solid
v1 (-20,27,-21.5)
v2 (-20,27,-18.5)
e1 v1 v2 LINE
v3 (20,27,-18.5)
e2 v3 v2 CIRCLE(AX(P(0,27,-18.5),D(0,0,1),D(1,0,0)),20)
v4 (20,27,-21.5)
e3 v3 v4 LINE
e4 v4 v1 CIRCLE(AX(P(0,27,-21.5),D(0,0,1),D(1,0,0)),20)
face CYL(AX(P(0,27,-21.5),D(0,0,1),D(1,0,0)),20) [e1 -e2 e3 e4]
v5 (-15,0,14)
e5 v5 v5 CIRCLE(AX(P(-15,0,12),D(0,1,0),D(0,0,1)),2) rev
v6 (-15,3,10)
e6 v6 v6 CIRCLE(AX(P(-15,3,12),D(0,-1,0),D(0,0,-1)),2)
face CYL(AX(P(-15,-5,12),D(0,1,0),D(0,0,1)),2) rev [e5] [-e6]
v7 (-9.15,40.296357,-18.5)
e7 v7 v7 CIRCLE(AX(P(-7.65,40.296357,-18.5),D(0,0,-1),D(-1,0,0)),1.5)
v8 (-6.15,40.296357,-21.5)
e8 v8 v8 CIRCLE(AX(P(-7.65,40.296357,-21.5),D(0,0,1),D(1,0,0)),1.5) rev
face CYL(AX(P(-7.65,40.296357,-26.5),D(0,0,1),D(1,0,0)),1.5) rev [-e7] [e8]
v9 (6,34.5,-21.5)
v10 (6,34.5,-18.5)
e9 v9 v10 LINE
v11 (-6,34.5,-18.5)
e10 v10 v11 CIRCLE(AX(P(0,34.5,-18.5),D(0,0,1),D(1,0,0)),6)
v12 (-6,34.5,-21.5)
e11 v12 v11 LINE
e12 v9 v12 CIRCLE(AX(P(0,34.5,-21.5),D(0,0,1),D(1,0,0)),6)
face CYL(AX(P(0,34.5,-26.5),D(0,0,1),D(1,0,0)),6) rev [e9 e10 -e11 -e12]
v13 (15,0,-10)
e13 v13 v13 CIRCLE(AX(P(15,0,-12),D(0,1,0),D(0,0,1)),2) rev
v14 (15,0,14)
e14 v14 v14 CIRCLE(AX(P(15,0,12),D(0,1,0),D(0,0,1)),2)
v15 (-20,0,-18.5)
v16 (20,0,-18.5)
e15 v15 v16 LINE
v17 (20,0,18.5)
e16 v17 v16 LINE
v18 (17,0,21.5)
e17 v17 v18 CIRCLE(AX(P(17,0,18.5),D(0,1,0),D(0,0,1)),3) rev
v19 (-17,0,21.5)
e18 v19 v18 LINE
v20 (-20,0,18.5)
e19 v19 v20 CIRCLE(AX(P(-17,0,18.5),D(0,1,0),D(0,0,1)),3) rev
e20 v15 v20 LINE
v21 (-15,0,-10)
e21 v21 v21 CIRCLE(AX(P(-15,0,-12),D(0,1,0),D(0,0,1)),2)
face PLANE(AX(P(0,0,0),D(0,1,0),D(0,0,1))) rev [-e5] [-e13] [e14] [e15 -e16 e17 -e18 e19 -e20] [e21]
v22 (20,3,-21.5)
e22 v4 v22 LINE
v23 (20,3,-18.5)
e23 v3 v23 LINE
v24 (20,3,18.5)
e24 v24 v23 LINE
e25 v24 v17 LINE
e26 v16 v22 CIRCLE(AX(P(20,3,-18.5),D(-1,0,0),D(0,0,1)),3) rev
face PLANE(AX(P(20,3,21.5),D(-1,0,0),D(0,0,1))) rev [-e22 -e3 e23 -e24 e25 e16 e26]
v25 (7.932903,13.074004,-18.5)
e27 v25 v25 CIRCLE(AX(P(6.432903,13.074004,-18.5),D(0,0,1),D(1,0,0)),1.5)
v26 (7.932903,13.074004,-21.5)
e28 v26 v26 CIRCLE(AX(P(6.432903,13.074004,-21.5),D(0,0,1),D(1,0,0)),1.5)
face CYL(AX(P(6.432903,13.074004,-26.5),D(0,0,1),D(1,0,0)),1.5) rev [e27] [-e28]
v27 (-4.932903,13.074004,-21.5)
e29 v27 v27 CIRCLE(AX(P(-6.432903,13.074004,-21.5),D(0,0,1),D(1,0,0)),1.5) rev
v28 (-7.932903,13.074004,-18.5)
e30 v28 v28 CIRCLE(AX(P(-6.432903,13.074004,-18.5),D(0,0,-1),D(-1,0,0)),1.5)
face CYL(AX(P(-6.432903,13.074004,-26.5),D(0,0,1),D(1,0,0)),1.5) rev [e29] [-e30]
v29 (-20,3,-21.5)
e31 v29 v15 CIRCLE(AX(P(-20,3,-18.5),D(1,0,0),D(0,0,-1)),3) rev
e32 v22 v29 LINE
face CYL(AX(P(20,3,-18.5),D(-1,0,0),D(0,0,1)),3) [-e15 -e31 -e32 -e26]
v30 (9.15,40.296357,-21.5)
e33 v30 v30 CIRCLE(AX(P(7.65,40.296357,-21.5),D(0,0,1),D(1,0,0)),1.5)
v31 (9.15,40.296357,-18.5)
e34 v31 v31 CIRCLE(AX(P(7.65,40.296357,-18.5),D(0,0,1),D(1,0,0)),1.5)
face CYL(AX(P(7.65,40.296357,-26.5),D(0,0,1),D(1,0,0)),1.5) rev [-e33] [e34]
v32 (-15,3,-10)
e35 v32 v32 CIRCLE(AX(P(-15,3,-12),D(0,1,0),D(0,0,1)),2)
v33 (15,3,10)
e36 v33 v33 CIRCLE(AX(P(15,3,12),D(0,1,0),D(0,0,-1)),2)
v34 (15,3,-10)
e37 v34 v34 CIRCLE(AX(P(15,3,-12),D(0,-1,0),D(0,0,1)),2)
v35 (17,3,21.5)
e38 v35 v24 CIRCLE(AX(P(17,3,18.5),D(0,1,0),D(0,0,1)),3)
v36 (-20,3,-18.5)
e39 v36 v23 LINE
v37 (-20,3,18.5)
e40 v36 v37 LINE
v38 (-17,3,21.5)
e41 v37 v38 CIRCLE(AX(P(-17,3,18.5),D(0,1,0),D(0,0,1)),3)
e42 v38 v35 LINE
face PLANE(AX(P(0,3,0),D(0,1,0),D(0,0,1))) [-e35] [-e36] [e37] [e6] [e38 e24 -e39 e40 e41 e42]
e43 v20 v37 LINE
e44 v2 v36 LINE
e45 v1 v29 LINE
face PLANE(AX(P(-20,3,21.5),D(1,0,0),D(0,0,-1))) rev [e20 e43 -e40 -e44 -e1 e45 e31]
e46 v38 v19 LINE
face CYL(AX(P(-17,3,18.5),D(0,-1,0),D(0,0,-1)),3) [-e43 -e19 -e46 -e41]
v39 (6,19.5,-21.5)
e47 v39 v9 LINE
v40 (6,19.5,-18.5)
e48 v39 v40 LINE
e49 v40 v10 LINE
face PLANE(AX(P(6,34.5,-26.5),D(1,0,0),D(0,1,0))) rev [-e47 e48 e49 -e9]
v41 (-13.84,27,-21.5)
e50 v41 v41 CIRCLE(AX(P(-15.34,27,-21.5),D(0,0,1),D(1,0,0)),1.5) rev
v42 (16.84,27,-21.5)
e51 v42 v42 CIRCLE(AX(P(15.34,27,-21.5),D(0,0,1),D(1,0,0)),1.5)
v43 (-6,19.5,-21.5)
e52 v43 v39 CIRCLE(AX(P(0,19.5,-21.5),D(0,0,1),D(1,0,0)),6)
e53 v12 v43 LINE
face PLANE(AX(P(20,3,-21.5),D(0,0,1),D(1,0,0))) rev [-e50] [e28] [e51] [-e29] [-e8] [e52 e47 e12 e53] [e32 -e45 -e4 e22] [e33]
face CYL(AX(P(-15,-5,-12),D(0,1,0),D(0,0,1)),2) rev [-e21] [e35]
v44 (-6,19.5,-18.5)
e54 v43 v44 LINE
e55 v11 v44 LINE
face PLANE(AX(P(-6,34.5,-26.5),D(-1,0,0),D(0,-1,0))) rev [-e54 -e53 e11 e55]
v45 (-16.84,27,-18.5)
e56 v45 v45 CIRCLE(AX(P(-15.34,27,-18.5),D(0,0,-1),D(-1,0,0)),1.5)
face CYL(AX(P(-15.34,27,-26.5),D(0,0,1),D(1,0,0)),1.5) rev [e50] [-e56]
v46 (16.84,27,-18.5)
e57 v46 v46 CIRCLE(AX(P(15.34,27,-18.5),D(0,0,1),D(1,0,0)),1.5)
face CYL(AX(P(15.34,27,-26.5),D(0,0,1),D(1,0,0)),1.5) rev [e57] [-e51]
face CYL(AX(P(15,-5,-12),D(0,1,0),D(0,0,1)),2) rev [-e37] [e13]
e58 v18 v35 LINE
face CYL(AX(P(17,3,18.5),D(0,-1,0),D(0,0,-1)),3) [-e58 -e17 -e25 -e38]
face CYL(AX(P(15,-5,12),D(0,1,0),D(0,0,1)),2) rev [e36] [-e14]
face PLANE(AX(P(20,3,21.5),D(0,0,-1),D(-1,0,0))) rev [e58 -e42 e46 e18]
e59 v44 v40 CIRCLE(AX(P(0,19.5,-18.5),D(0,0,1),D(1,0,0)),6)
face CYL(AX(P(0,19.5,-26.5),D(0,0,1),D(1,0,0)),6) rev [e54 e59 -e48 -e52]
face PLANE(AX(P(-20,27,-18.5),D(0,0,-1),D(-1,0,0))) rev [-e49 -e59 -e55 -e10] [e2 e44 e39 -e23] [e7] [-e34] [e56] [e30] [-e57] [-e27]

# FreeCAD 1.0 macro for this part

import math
import FreeCAD as App
import Part
import Sketcher

V = App.Vector


def edges_at(feature, points):
    """Names of the edges that pass closest to the given points."""
    edges = feature.Shape.Edges
    near = lambda p: min(range(len(edges)), key=lambda i: edges[i].distToShape(Part.Vertex(*p))[0])
    return sorted({f"Edge{near(p) + 1}" for p in points})


def add_polygon(sketch, points):
    """Adds a closed chain of lines whose ends are joined by coincident constraints."""
    first, n = sketch.GeometryCount, len(points)
    for a, b in zip(points, points[1:] + points[:1]):
        sketch.addGeometry(Part.LineSegment(App.Vector(*a, 0), App.Vector(*b, 0)), False)
    for i in range(n):
        sketch.addConstraint(Sketcher.Constraint("Coincident", first + i, 2, first + (i + 1) % n, 1))

doc = App.newDocument("Part")
params = doc.addObject("Spreadsheet::Sheet", "Params")
for row, (alias, value) in enumerate([
    ("sketch1_width", "40 mm"),
    ("sketch1_height", "43 mm"),
    ("pad1_length", "3 mm"),
    ("sketch2_width", "40 mm"),
    ("sketch2_height", "3 mm"),
    ("pad2_length", "24 mm"),
    ("sketch3_diameter", "40 mm"),
    ("pad3_length", "3 mm"),
    ("sketch4_diameter", "3 mm"),
    ("pocket1_length", "8 mm"),
    ("fillet_radius", "3 mm"),
    ("sketch5_diameter", "4 mm"),
    ("pocket2_length", "8 mm"),
    ("sketch6_diameter", "4 mm"),
    ("pocket3_length", "8 mm"),
    ("fillet2_radius", "3 mm"),
    ("sketch7_radius", "6 mm"),
    ("sketch7_height", "15 mm"),
    ("pocket4_length", "8 mm"),
], start=1):
    params.set(f"A{row}", alias)
    params.set(f"B{row}", "=" + value)
    params.setAlias(f"B{row}", alias)

body = doc.addObject("PartDesign::Body", "Body")

# Sketch on XZ plane
sketch1 = body.newObject("Sketcher::SketchObject", "Sketch")
sketch1.AttachmentSupport = (doc.getObject("XZ_Plane"), [""])
sketch1.MapMode = "FlatFace"
add_polygon(sketch1, [(-20, -22), (-20, 22), (20, 22), (20, -22)])  # lines 0-3
sketch1.addConstraint(Sketcher.Constraint("Vertical", 0))
sketch1.addConstraint(Sketcher.Constraint("Horizontal", 1))
sketch1.addConstraint(Sketcher.Constraint("Vertical", 2))
sketch1.addConstraint(Sketcher.Constraint("Horizontal", 3))
sketch1.addConstraint(Sketcher.Constraint("Symmetric", 0, 2, 2, 2, -1, 1))
sketch1.addConstraint(Sketcher.Constraint("DistanceX", 1, 1, 1, 2, 40.0))
sketch1.addConstraint(Sketcher.Constraint("DistanceY", 0, 1, 0, 2, 43.0))
sketch1.setExpression("Constraints[9]", "Params.sketch1_width")
sketch1.setExpression("Constraints[10]", "Params.sketch1_height")
pad1 = body.newObject("PartDesign::Pad", "Pad")
pad1.Profile = sketch1
pad1.setExpression("Length", "Params.pad1_length")
pad1.Reversed = True

# Sketch on XZ plane
sketch2 = body.newObject("Sketcher::SketchObject", "Sketch001")
sketch2.AttachmentSupport = (doc.getObject("XZ_Plane"), [""])
sketch2.MapMode = "FlatFace"
sketch2.AttachmentOffset = App.Placement(V(0, 0, -3), App.Rotation())
add_polygon(sketch2, [(-20, -21.5), (-20, -18.5), (20, -18.5), (20, -21.5)])  # lines 0-3
sketch2.addConstraint(Sketcher.Constraint("Vertical", 0))
sketch2.addConstraint(Sketcher.Constraint("Horizontal", 1))
sketch2.addConstraint(Sketcher.Constraint("Vertical", 2))
sketch2.addConstraint(Sketcher.Constraint("Horizontal", 3))
sketch2.addConstraint(Sketcher.Constraint("DistanceX", 1, 1, 1, 2, 40.0))
sketch2.addConstraint(Sketcher.Constraint("DistanceY", 0, 1, 0, 2, 3.0))
sketch2.addConstraint(Sketcher.Constraint("DistanceX", 0, 2, -1, 1, 20.0))
sketch2.addConstraint(Sketcher.Constraint("DistanceY", 0, 2, -1, 1, 18.5))
sketch2.setExpression("Constraints[8]", "Params.sketch2_width")
sketch2.setExpression("Constraints[9]", "Params.sketch2_height")
pad2 = body.newObject("PartDesign::Pad", "Pad001")
pad2.Profile = sketch2
pad2.setExpression("Length", "Params.pad2_length")
pad2.Reversed = True

# Sketch on XY plane
sketch3 = body.newObject("Sketcher::SketchObject", "Sketch002")
sketch3.AttachmentSupport = (doc.getObject("XY_Plane"), [""])
sketch3.MapMode = "FlatFace"
sketch3.AttachmentOffset = App.Placement(V(0, 0, -18.5), App.Rotation())
sketch3.addGeometry(Part.Circle(V(0, 27, 0), V(0, 0, 1), 20), False)
sketch3.addConstraint(Sketcher.Constraint("PointOnObject", 0, 3, -2))
sketch3.addConstraint(Sketcher.Constraint("Diameter", 0, 40.0))
sketch3.addConstraint(Sketcher.Constraint("DistanceY", -1, 1, 0, 3, 27.0))
sketch3.setExpression("Constraints[1]", "Params.sketch3_diameter")
pad3 = body.newObject("PartDesign::Pad", "Pad002")
pad3.Profile = sketch3
pad3.setExpression("Length", "Params.pad3_length")
pad3.Reversed = True

# Sketch on XY plane
sketch4 = body.newObject("Sketcher::SketchObject", "Sketch003")
sketch4.AttachmentSupport = (doc.getObject("XY_Plane"), [""])
sketch4.MapMode = "FlatFace"
sketch4.AttachmentOffset = App.Placement(V(0, 0, -18.5), App.Rotation())
sketch4.addGeometry(Part.Circle(V(7.7, 40.3, 0), V(0, 0, 1), 1.5), False)
sketch4.addGeometry(Part.Circle(V(15.3, 27, 0), V(0, 0, 1), 1.5), False)
sketch4.addGeometry(Part.Circle(V(6.4, 13.1, 0), V(0, 0, 1), 1.5), False)
sketch4.addConstraint(Sketcher.Constraint("Equal", 0, 1))
sketch4.addConstraint(Sketcher.Constraint("Equal", 1, 2))
sketch4.addConstraint(Sketcher.Constraint("Diameter", 0, 3.0))
sketch4.addConstraint(Sketcher.Constraint("DistanceY", -1, 1, 1, 3, 27.0))
sketch4.addConstraint(Sketcher.Constraint("DistanceX", -1, 1, 0, 3, 7.65))
sketch4.addConstraint(Sketcher.Constraint("DistanceX", -1, 1, 1, 3, 15.34))
sketch4.addConstraint(Sketcher.Constraint("DistanceY", -1, 1, 0, 3, 40.296357))
sketch4.addConstraint(Sketcher.Constraint("DistanceX", -1, 1, 2, 3, 6.432903))
sketch4.addConstraint(Sketcher.Constraint("DistanceY", -1, 1, 2, 3, 13.074004))
sketch4.setExpression("Constraints[2]", "Params.sketch4_diameter")
pocket1 = body.newObject("PartDesign::Pocket", "Pocket")
pocket1.Profile = sketch4
pocket1.setExpression("Length", "Params.pocket1_length")
doc.recompute()

mirrored = body.newObject("PartDesign::Mirrored", "Mirrored")
mirrored.Originals = [pocket1]
mirrored.MirrorPlane = (doc.getObject("YZ_Plane"), [""])
body.Tip = mirrored
doc.recompute()

fillet = body.newObject("PartDesign::Fillet", "Fillet")
fillet.Base = (mirrored, edges_at(mirrored, [(0, 0, -21.5)]))
fillet.setExpression("Radius", "Params.fillet_radius")

# Sketch on XZ plane
sketch5 = body.newObject("Sketcher::SketchObject", "Sketch004")
sketch5.AttachmentSupport = (doc.getObject("XZ_Plane"), [""])
sketch5.MapMode = "FlatFace"
sketch5.AttachmentOffset = App.Placement(V(0, 0, -3), App.Rotation())
sketch5.addGeometry(Part.Circle(V(-15, -12, 0), V(0, 0, 1), 2), False)
sketch5.addConstraint(Sketcher.Constraint("Diameter", 0, 4.0))
sketch5.addConstraint(Sketcher.Constraint("DistanceX", 0, 3, -1, 1, 15.0))
sketch5.addConstraint(Sketcher.Constraint("DistanceY", 0, 3, -1, 1, 12.0))
sketch5.setExpression("Constraints[0]", "Params.sketch5_diameter")
pocket2 = body.newObject("PartDesign::Pocket", "Pocket001")
pocket2.Profile = sketch5
pocket2.setExpression("Length", "Params.pocket2_length")
pocket2.Reversed = True
doc.recompute()

mirrored2 = body.newObject("PartDesign::Mirrored", "Mirrored001")
mirrored2.Originals = [pocket2]
mirrored2.MirrorPlane = (doc.getObject("YZ_Plane"), [""])
body.Tip = mirrored2
doc.recompute()

mirrored3 = body.newObject("PartDesign::Mirrored", "Mirrored002")
mirrored3.Originals = [pocket2]
mirrored3.MirrorPlane = (doc.getObject("XY_Plane"), [""])
body.Tip = mirrored3

# Sketch on XZ plane
sketch6 = body.newObject("Sketcher::SketchObject", "Sketch005")
sketch6.AttachmentSupport = (doc.getObject("XZ_Plane"), [""])
sketch6.MapMode = "FlatFace"
sketch6.AttachmentOffset = App.Placement(V(0, 0, -3), App.Rotation())
sketch6.addGeometry(Part.Circle(V(15, 12, 0), V(0, 0, 1), 2), False)
sketch6.addConstraint(Sketcher.Constraint("Diameter", 0, 4.0))
sketch6.addConstraint(Sketcher.Constraint("DistanceX", -1, 1, 0, 3, 15.0))
sketch6.addConstraint(Sketcher.Constraint("DistanceY", -1, 1, 0, 3, 12.0))
sketch6.setExpression("Constraints[0]", "Params.sketch6_diameter")
pocket3 = body.newObject("PartDesign::Pocket", "Pocket002")
pocket3.Profile = sketch6
pocket3.setExpression("Length", "Params.pocket3_length")
pocket3.Reversed = True
doc.recompute()

fillet2 = body.newObject("PartDesign::Fillet", "Fillet001")
fillet2.Base = (pocket3, edges_at(pocket3, [(20, 1.5, 21.5), (-20, 1.5, 21.5)]))
fillet2.setExpression("Radius", "Params.fillet2_radius")

# Sketch on XY plane
sketch7 = body.newObject("Sketcher::SketchObject", "Sketch006")
sketch7.AttachmentSupport = (doc.getObject("XY_Plane"), [""])
sketch7.MapMode = "FlatFace"
sketch7.AttachmentOffset = App.Placement(V(0, 0, -18.5), App.Rotation())
sketch7.addGeometry(Part.LineSegment(V(6, 20, 0), V(6, 34, 0)), False)
sketch7.addGeometry(Part.ArcOfCircle(Part.Circle(V(0, 34, 0), V(0, 0, 1), 6), math.radians(0), math.radians(180)), False)
sketch7.addGeometry(Part.LineSegment(V(-6, 34, 0), V(-6, 20, 0)), False)
sketch7.addGeometry(Part.ArcOfCircle(Part.Circle(V(0, 20, 0), V(0, 0, 1), 6), math.radians(180), math.radians(360)), False)
sketch7.addConstraint(Sketcher.Constraint("Tangent", 0, 2, 1, 1))
sketch7.addConstraint(Sketcher.Constraint("Tangent", 1, 2, 2, 1))
sketch7.addConstraint(Sketcher.Constraint("Tangent", 2, 2, 3, 1))
sketch7.addConstraint(Sketcher.Constraint("Tangent", 3, 2, 0, 1))
sketch7.addConstraint(Sketcher.Constraint("Vertical", 0))
sketch7.addConstraint(Sketcher.Constraint("Vertical", 2))
sketch7.addConstraint(Sketcher.Constraint("PointOnObject", 1, 3, -2))
sketch7.addConstraint(Sketcher.Constraint("Radius", 1, 6.0))
sketch7.addConstraint(Sketcher.Constraint("DistanceY", 0, 1, 0, 2, 15.0))
sketch7.addConstraint(Sketcher.Constraint("DistanceY", -1, 1, 1, 3, 34.5))
sketch7.setExpression("Constraints[7]", "Params.sketch7_radius")
sketch7.setExpression("Constraints[8]", "Params.sketch7_height")
pocket4 = body.newObject("PartDesign::Pocket", "Pocket003")
pocket4.Profile = sketch7
pocket4.setExpression("Length", "Params.pocket4_length")

doc.recompute()
